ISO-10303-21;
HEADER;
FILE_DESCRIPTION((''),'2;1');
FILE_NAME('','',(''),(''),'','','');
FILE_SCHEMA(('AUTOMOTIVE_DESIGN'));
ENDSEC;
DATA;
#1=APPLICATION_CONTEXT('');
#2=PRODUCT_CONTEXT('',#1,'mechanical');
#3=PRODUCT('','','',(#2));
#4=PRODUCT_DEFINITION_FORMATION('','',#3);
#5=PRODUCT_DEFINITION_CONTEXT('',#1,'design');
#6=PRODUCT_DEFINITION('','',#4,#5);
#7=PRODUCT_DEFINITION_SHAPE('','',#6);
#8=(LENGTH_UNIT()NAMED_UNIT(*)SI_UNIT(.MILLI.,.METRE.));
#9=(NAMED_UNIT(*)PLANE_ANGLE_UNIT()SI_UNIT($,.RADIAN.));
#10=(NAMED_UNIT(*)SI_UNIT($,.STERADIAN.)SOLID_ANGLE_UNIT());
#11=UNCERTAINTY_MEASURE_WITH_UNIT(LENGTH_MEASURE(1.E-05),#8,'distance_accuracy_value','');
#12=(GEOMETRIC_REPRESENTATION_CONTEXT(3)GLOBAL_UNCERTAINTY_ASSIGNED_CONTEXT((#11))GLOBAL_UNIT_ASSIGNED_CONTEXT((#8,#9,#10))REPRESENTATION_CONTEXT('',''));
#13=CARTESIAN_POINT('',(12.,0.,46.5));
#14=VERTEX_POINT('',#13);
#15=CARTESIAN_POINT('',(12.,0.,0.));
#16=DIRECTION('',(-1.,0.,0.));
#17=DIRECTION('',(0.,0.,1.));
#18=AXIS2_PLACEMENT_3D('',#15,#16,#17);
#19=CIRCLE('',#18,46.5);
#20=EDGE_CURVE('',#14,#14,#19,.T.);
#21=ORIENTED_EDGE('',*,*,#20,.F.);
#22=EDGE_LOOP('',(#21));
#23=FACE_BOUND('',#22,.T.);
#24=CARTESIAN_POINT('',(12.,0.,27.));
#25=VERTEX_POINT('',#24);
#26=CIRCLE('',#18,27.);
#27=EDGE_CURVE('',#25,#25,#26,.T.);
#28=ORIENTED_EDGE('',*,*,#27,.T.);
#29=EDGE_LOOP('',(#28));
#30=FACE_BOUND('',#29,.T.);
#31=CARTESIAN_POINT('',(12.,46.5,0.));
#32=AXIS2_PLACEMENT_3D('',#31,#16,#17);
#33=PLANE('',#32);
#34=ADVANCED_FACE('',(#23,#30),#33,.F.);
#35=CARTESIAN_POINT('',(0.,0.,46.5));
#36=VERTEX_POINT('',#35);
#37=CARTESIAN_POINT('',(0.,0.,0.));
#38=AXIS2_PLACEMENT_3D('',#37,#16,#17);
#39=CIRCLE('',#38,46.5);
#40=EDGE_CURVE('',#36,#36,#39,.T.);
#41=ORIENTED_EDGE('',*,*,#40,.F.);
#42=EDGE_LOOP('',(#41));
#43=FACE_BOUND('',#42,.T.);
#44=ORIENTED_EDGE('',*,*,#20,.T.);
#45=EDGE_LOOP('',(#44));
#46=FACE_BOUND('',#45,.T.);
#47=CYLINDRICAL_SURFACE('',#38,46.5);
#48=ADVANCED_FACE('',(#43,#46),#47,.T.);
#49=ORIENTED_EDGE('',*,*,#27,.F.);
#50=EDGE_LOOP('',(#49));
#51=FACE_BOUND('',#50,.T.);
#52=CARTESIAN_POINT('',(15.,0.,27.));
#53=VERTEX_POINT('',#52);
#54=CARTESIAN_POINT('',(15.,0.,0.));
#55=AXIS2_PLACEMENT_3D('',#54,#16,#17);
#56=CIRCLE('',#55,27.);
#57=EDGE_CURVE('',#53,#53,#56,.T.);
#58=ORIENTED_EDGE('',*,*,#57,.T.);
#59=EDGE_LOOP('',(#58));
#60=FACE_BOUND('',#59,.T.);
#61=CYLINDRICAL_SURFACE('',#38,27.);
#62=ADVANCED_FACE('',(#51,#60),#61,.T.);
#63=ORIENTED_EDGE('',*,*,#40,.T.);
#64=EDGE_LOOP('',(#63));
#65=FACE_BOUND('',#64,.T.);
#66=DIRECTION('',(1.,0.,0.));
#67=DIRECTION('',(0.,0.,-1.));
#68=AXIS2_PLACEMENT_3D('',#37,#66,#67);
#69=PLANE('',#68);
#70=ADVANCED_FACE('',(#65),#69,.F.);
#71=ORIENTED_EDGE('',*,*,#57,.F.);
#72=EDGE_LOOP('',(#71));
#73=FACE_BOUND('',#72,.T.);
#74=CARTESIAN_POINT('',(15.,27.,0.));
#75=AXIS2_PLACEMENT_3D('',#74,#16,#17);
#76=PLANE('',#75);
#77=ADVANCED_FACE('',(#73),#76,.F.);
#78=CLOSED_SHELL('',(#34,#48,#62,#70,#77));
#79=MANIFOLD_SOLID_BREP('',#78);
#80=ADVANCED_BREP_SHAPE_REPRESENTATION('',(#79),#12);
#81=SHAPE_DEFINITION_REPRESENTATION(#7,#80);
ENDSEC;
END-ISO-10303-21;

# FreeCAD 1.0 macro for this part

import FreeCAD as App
import Part
import Sketcher

V = App.Vector

doc = App.newDocument("Part")
params = doc.addObject("Spreadsheet::Sheet", "Params")
for row, (alias, value) in enumerate([
    ("sketch1_width", "15 mm"),
    ("sketch1_width2", "3 mm"),
    ("sketch1_height", "27 mm"),
    ("sketch1_height2", "46.5 mm"),
    ("revolution_angle", "360 deg"),
], start=1):
    params.set(f"A{row}", alias)
    params.set(f"B{row}", "=" + value)
    params.setAlias(f"B{row}", alias)

body = doc.addObject("PartDesign::Body", "Body")

# Sketch on XY plane
sketch1 = body.newObject("Sketcher::SketchObject", "Sketch")
sketch1.AttachmentSupport = (doc.getObject("XY_Plane"), [""])
sketch1.MapMode = "FlatFace"
sketch1.addGeometry([
    Part.LineSegment(V(0, 46.5, 0), V(0, 0, 0)),  # 0
    Part.LineSegment(V(0, 0, 0), V(15, 0, 0)),  # 1
    Part.LineSegment(V(15, 0, 0), V(15, 27, 0)),  # 2
    Part.LineSegment(V(15, 27, 0), V(12, 27, 0)),  # 3
    Part.LineSegment(V(12, 27, 0), V(12, 46.5, 0)),  # 4
    Part.LineSegment(V(12, 46.5, 0), V(0, 46.5, 0)),  # 5
], False)
sketch1.addConstraint([
    Sketcher.Constraint("Coincident", 0, 2, 1, 1),
    Sketcher.Constraint("Coincident", 1, 2, 2, 1),
    Sketcher.Constraint("Coincident", 2, 2, 3, 1),
    Sketcher.Constraint("Coincident", 3, 2, 4, 1),
    Sketcher.Constraint("Coincident", 4, 2, 5, 1),
    Sketcher.Constraint("Coincident", 5, 2, 0, 1),
    Sketcher.Constraint("Vertical", 0),
    Sketcher.Constraint("Horizontal", 1),
    Sketcher.Constraint("Vertical", 2),
    Sketcher.Constraint("Horizontal", 3),
    Sketcher.Constraint("Vertical", 4),
    Sketcher.Constraint("Horizontal", 5),
    Sketcher.Constraint("Coincident", 0, 2, -1, 1),
    Sketcher.Constraint("DistanceX", 1, 1, 1, 2, 15.0),
    Sketcher.Constraint("DistanceX", 3, 2, 3, 1, 3.0),
    Sketcher.Constraint("DistanceY", 2, 1, 2, 2, 27.0),
    Sketcher.Constraint("DistanceY", 0, 2, 0, 1, 46.5),
])
sketch1.setExpression("Constraints[13]", "Params.sketch1_width")
sketch1.setExpression("Constraints[14]", "Params.sketch1_width2")
sketch1.setExpression("Constraints[15]", "Params.sketch1_height")
sketch1.setExpression("Constraints[16]", "Params.sketch1_height2")
revolution = body.newObject("PartDesign::Revolution", "Revolution")
revolution.Profile = sketch1
revolution.ReferenceAxis = (sketch1, ["H_Axis"])
revolution.setExpression("Angle", "Params.revolution_angle")

doc.recompute()
